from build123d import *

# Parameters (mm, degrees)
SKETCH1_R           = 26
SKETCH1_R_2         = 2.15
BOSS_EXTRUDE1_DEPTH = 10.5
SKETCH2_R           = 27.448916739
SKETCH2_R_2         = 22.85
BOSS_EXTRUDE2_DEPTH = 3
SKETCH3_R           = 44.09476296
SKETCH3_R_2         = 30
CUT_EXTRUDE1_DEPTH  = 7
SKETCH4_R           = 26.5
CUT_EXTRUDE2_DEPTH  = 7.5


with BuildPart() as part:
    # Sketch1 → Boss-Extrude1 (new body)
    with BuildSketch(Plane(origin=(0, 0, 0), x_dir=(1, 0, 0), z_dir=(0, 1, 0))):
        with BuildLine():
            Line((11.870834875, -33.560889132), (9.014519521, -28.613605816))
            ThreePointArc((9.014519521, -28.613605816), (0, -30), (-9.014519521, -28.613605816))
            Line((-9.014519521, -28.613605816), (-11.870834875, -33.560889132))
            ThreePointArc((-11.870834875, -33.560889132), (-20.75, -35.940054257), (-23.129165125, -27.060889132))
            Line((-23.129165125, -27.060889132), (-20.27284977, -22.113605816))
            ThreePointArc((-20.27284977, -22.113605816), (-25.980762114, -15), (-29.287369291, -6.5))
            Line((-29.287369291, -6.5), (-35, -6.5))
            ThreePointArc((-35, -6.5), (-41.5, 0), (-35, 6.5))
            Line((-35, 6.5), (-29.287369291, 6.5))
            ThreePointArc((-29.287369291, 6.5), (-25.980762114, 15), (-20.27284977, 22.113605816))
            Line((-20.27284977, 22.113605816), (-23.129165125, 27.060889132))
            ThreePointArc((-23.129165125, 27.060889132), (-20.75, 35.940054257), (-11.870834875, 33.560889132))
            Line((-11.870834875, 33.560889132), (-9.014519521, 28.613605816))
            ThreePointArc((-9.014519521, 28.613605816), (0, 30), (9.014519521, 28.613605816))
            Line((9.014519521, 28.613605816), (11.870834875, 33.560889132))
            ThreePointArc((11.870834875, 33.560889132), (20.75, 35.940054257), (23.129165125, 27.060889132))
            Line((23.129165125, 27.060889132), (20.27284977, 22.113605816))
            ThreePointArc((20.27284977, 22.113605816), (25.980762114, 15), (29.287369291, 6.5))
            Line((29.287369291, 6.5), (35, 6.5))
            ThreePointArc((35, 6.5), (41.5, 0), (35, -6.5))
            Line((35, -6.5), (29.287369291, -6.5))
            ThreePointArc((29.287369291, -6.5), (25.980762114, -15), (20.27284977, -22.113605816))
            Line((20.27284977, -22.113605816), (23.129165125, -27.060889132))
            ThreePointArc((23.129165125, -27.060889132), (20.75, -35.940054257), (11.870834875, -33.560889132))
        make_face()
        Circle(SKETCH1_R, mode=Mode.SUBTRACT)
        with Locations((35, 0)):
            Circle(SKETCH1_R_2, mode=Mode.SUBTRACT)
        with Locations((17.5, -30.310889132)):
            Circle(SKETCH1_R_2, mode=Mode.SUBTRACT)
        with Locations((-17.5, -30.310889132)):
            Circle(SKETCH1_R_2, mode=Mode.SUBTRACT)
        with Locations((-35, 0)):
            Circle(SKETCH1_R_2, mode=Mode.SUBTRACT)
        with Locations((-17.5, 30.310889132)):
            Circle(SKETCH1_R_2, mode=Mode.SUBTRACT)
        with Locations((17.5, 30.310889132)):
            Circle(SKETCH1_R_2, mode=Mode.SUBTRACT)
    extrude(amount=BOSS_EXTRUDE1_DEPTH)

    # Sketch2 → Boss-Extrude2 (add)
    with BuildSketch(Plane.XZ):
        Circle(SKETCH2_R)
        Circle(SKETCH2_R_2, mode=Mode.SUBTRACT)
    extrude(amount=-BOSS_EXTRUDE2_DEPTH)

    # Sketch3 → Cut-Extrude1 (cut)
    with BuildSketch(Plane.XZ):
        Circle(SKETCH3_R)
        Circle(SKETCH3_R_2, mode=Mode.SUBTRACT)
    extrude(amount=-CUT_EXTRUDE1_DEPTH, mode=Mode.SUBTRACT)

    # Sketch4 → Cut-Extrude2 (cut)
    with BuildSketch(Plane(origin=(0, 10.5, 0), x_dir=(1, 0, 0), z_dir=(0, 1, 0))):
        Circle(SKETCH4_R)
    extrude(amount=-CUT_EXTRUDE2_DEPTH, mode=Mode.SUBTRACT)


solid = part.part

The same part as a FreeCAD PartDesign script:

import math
import FreeCAD as App
import Part
import Sketcher
Q = App.Units.Quantity

doc = App.newDocument("Part")
body = doc.addObject("PartDesign::Body", "Body")

sketch1 = doc.addObject("Sketcher::SketchObject", "Sketch")
body.addObject(sketch1)
sketch1.AttachmentSupport = (doc.XZ_Plane, [""])
sketch1.MapMode = "FlatFace"
sketch1.addGeometry(Part.LineSegment(App.Vector(9, 28.6, 0), App.Vector(11.9, 33.6, 0)), False)
sketch1.addGeometry(Part.ArcOfCircle(Part.Circle(App.Vector(17.5, 30.3, 0), App.Vector(0, 0, 1), 6.5), math.radians(-30), math.radians(150)), False)
sketch1.addGeometry(Part.LineSegment(App.Vector(23.1, 27.1, 0), App.Vector(20.3, 22.1, 0)), False)
sketch1.addGeometry(Part.ArcOfCircle(Part.Circle(App.Vector(0, 0, 0), App.Vector(0, 0, 1), 30), math.radians(13), math.radians(47)), False)
sketch1.addGeometry(Part.LineSegment(App.Vector(29.3, 6.5, 0), App.Vector(35, 6.5, 0)), False)
sketch1.addGeometry(Part.ArcOfCircle(Part.Circle(App.Vector(35, 0, 0), App.Vector(0, 0, 1), 6.5), math.radians(-90), math.radians(90)), False)
sketch1.addGeometry(Part.LineSegment(App.Vector(35, -6.5, 0), App.Vector(29.3, -6.5, 0)), False)
sketch1.addGeometry(Part.ArcOfCircle(Part.Circle(App.Vector(0, 0, 0), App.Vector(0, 0, 1), 30), math.radians(-47), math.radians(-13)), False)
sketch1.addGeometry(Part.LineSegment(App.Vector(20.3, -22.1, 0), App.Vector(23.1, -27.1, 0)), False)
sketch1.addGeometry(Part.ArcOfCircle(Part.Circle(App.Vector(17.5, -30.3, 0), App.Vector(0, 0, 1), 6.5), math.radians(-150), math.radians(30)), False)
sketch1.addGeometry(Part.LineSegment(App.Vector(11.9, -33.6, 0), App.Vector(9, -28.6, 0)), False)
sketch1.addGeometry(Part.ArcOfCircle(Part.Circle(App.Vector(0, 0, 0), App.Vector(0, 0, 1), 30), math.radians(-107), math.radians(-73)), False)
sketch1.addGeometry(Part.LineSegment(App.Vector(-9, -28.6, 0), App.Vector(-11.9, -33.6, 0)), False)
sketch1.addGeometry(Part.ArcOfCircle(Part.Circle(App.Vector(-17.5, -30.3, 0), App.Vector(0, 0, 1), 6.5), math.radians(150), math.radians(330)), False)
sketch1.addGeometry(Part.LineSegment(App.Vector(-23.1, -27.1, 0), App.Vector(-20.3, -22.1, 0)), False)
sketch1.addGeometry(Part.ArcOfCircle(Part.Circle(App.Vector(0, 0, 0), App.Vector(0, 0, 1), 30), math.radians(-167), math.radians(-133)), False)
sketch1.addGeometry(Part.LineSegment(App.Vector(-29.3, -6.5, 0), App.Vector(-35, -6.5, 0)), False)
sketch1.addGeometry(Part.ArcOfCircle(Part.Circle(App.Vector(-35, 0, 0), App.Vector(0, 0, 1), 6.5), math.radians(90), math.radians(270)), False)
sketch1.addGeometry(Part.LineSegment(App.Vector(-35, 6.5, 0), App.Vector(-29.3, 6.5, 0)), False)
sketch1.addGeometry(Part.ArcOfCircle(Part.Circle(App.Vector(0, 0, 0), App.Vector(0, 0, 1), 30), math.radians(133), math.radians(167)), False)
sketch1.addGeometry(Part.LineSegment(App.Vector(-20.3, 22.1, 0), App.Vector(-23.1, 27.1, 0)), False)
sketch1.addGeometry(Part.ArcOfCircle(Part.Circle(App.Vector(-17.5, 30.3, 0), App.Vector(0, 0, 1), 6.5), math.radians(30), math.radians(210)), False)
sketch1.addGeometry(Part.LineSegment(App.Vector(-11.9, 33.6, 0), App.Vector(-9, 28.6, 0)), False)
sketch1.addGeometry(Part.ArcOfCircle(Part.Circle(App.Vector(0, 0, 0), App.Vector(0, 0, 1), 30), math.radians(73), math.radians(107)), False)
sketch1.addGeometry(Part.Circle(App.Vector(17.5, 30.3, 0), App.Vector(0, 0, 1), 2.1), False)
sketch1.addGeometry(Part.Circle(App.Vector(-17.5, 30.3, 0), App.Vector(0, 0, 1), 2.1), False)
sketch1.addGeometry(Part.Circle(App.Vector(35, 0, 0), App.Vector(0, 0, 1), 2.1), False)
sketch1.addGeometry(Part.Circle(App.Vector(17.5, -30.3, 0), App.Vector(0, 0, 1), 2.1), False)
sketch1.addGeometry(Part.Circle(App.Vector(0, 0, 0), App.Vector(0, 0, 1), 26), False)
sketch1.addGeometry(Part.Circle(App.Vector(-35, 0, 0), App.Vector(0, 0, 1), 2.1), False)
sketch1.addGeometry(Part.Circle(App.Vector(-17.5, -30.3, 0), App.Vector(0, 0, 1), 2.1), False)
sketch1.addConstraint(Sketcher.Constraint("Tangent", 0, 2, 1, 2))
sketch1.addConstraint(Sketcher.Constraint("Tangent", 1, 1, 2, 1))
sketch1.addConstraint(Sketcher.Constraint("Coincident", 2, 2, 3, 2))
sketch1.addConstraint(Sketcher.Constraint("Coincident", 3, 1, 4, 1))
sketch1.addConstraint(Sketcher.Constraint("Tangent", 4, 2, 5, 2))
sketch1.addConstraint(Sketcher.Constraint("Tangent", 5, 1, 6, 1))
sketch1.addConstraint(Sketcher.Constraint("Coincident", 6, 2, 7, 2))
sketch1.addConstraint(Sketcher.Constraint("Coincident", 7, 1, 8, 1))
sketch1.addConstraint(Sketcher.Constraint("Tangent", 8, 2, 9, 2))
sketch1.addConstraint(Sketcher.Constraint("Tangent", 9, 1, 10, 1))
sketch1.addConstraint(Sketcher.Constraint("Coincident", 10, 2, 11, 2))
sketch1.addConstraint(Sketcher.Constraint("Coincident", 11, 1, 12, 1))
sketch1.addConstraint(Sketcher.Constraint("Tangent", 12, 2, 13, 2))
sketch1.addConstraint(Sketcher.Constraint("Tangent", 13, 1, 14, 1))
sketch1.addConstraint(Sketcher.Constraint("Coincident", 14, 2, 15, 2))
sketch1.addConstraint(Sketcher.Constraint("Coincident", 15, 1, 16, 1))
sketch1.addConstraint(Sketcher.Constraint("Tangent", 16, 2, 17, 2))
sketch1.addConstraint(Sketcher.Constraint("Tangent", 17, 1, 18, 1))
sketch1.addConstraint(Sketcher.Constraint("Coincident", 18, 2, 19, 2))
sketch1.addConstraint(Sketcher.Constraint("Coincident", 19, 1, 20, 1))
sketch1.addConstraint(Sketcher.Constraint("Tangent", 20, 2, 21, 2))
sketch1.addConstraint(Sketcher.Constraint("Tangent", 21, 1, 22, 1))
sketch1.addConstraint(Sketcher.Constraint("Coincident", 22, 2, 23, 2))
sketch1.addConstraint(Sketcher.Constraint("Coincident", 23, 1, 0, 1))
sketch1.addConstraint(Sketcher.Constraint("Horizontal", 4))
sketch1.addConstraint(Sketcher.Constraint("Horizontal", 6))
sketch1.addConstraint(Sketcher.Constraint("Horizontal", 16))
sketch1.addConstraint(Sketcher.Constraint("Horizontal", 18))
sketch1.addConstraint(Sketcher.Constraint("Coincident", 3, 3, -1, 1))
sketch1.addConstraint(Sketcher.Constraint("Coincident", 7, 3, -1, 1))
sketch1.addConstraint(Sketcher.Constraint("Coincident", 11, 3, -1, 1))
sketch1.addConstraint(Sketcher.Constraint("Coincident", 15, 3, -1, 1))
sketch1.addConstraint(Sketcher.Constraint("Coincident", 19, 3, -1, 1))
sketch1.addConstraint(Sketcher.Constraint("Coincident", 23, 3, -1, 1))
sketch1.addConstraint(Sketcher.Constraint("Coincident", 28, 3, -1, 1))
sketch1.addConstraint(Sketcher.Constraint("Coincident", 24, 3, 1, 3))
sketch1.addConstraint(Sketcher.Constraint("Coincident", 25, 3, 21, 3))
sketch1.addConstraint(Sketcher.Constraint("Coincident", 26, 3, 5, 3))
sketch1.addConstraint(Sketcher.Constraint("Coincident", 27, 3, 9, 3))
sketch1.addConstraint(Sketcher.Constraint("Coincident", 29, 3, 17, 3))
sketch1.addConstraint(Sketcher.Constraint("Coincident", 30, 3, 13, 3))
sketch1.addConstraint(Sketcher.Constraint("Equal", 1, 5))
sketch1.addConstraint(Sketcher.Constraint("Equal", 3, 7))
sketch1.addConstraint(Sketcher.Constraint("Equal", 5, 9))
sketch1.addConstraint(Sketcher.Constraint("Equal", 7, 11))
sketch1.addConstraint(Sketcher.Constraint("Equal", 9, 13))
sketch1.addConstraint(Sketcher.Constraint("Equal", 11, 15))
sketch1.addConstraint(Sketcher.Constraint("Equal", 13, 17))
sketch1.addConstraint(Sketcher.Constraint("Equal", 15, 19))
sketch1.addConstraint(Sketcher.Constraint("Equal", 17, 21))
sketch1.addConstraint(Sketcher.Constraint("Equal", 19, 23))
sketch1.addConstraint(Sketcher.Constraint("Equal", 24, 25))
sketch1.addConstraint(Sketcher.Constraint("Equal", 25, 26))
sketch1.addConstraint(Sketcher.Constraint("Equal", 26, 27))
sketch1.addConstraint(Sketcher.Constraint("Equal", 27, 29))
sketch1.addConstraint(Sketcher.Constraint("Equal", 29, 30))
sketch1.addConstraint(Sketcher.Constraint("Symmetric", 1, 3, 13, 3, -1, 1))
sketch1.addConstraint(Sketcher.Constraint("Symmetric", 5, 3, 17, 3, -1, 1))
sketch1.addConstraint(Sketcher.Constraint("Symmetric", 9, 3, 21, 3, -1, 1))
sketch1.addConstraint(Sketcher.Constraint("Symmetric", 9, 3, 13, 3, -2))
sketch1.addConstraint(Sketcher.Constraint("PointOnObject", 5, 3, -1))
sketch1.addConstraint(Sketcher.Constraint("Parallel", 0, 2))
sketch1.addConstraint(Sketcher.Constraint("Parallel", 8, 10))
sketch1.addConstraint(Sketcher.Constraint("Parallel", 2, 12))
sketch1.addConstraint(Sketcher.Constraint("Parallel", 12, 14))
sketch1.addConstraint(Sketcher.Constraint("Parallel", 10, 20))
sketch1.addConstraint(Sketcher.Constraint("Parallel", 20, 22))
sketch1.addConstraint(Sketcher.Constraint("Horizontal", 10, 2, 11, 1))
sketch1.addConstraint(Sketcher.Constraint("Equal", 0, 2))
sketch1.addConstraint(Sketcher.Constraint("Diameter", 28, Q("52 mm")))
sketch1.addConstraint(Sketcher.Constraint("Radius", 3, Q("30 mm")))
sketch1.addConstraint(Sketcher.Constraint("Diameter", 24, Q("4.3 mm")))
sketch1.addConstraint(Sketcher.Constraint("Radius", 1, Q("6.5 mm")))
sketch1.addConstraint(Sketcher.Constraint("Angle", 0, Q("60 deg")))
sketch1.addConstraint(Sketcher.Constraint("DistanceX", -1, 1, 5, 3, Q("35 mm")))
sketch1.addConstraint(Sketcher.Constraint("DistanceX", 13, 3, 9, 3, Q("35 mm")))
pad1 = doc.addObject("PartDesign::Pad", "Pad")
body.addObject(pad1)
pad1.Profile = sketch1
pad1.Length = 10.5
pad1.Reversed = True

sketch2 = doc.addObject("Sketcher::SketchObject", "Sketch001")
body.addObject(sketch2)
sketch2.AttachmentSupport = (doc.XZ_Plane, [""])
sketch2.MapMode = "FlatFace"
sketch2.addGeometry(Part.Circle(App.Vector(0, 0, 0), App.Vector(0, 0, 1), 27), False)
sketch2.addGeometry(Part.Circle(App.Vector(0, 0, 0), App.Vector(0, 0, 1), 23), False)
sketch2.addConstraint(Sketcher.Constraint("Coincident", 0, 3, -1, 1))
sketch2.addConstraint(Sketcher.Constraint("Coincident", 1, 3, -1, 1))
sketch2.addConstraint(Sketcher.Constraint("Diameter", 1, Q("45.7 mm")))
sketch2.addConstraint(Sketcher.Constraint("Diameter", 0, Q("54.897833 mm")))
pad2 = doc.addObject("PartDesign::Pad", "Pad001")
body.addObject(pad2)
pad2.Profile = sketch2
pad2.Length = 3
pad2.Reversed = True

sketch3 = doc.addObject("Sketcher::SketchObject", "Sketch002")
body.addObject(sketch3)
sketch3.AttachmentSupport = (doc.XZ_Plane, [""])
sketch3.MapMode = "FlatFace"
sketch3.addGeometry(Part.Circle(App.Vector(0, 0, 0), App.Vector(0, 0, 1), 44), False)
sketch3.addGeometry(Part.Circle(App.Vector(0, 0, 0), App.Vector(0, 0, 1), 30), False)
sketch3.addConstraint(Sketcher.Constraint("Coincident", 0, 3, -1, 1))
sketch3.addConstraint(Sketcher.Constraint("Coincident", 1, 3, -1, 1))
sketch3.addConstraint(Sketcher.Constraint("Diameter", 1, Q("60 mm")))
sketch3.addConstraint(Sketcher.Constraint("Diameter", 0, Q("88.189526 mm")))
pocket1 = doc.addObject("PartDesign::Pocket", "Pocket")
body.addObject(pocket1)
pocket1.Profile = sketch3
pocket1.Length = 7

sketch4 = doc.addObject("Sketcher::SketchObject", "Sketch003")
body.addObject(sketch4)
sketch4.AttachmentSupport = (doc.XZ_Plane, [""])
sketch4.MapMode = "FlatFace"
sketch4.AttachmentOffset = App.Placement(App.Vector(0, 0, -10.5), App.Rotation())
sketch4.addGeometry(Part.Circle(App.Vector(0, 0, 0), App.Vector(0, 0, 1), 26), False)
sketch4.addConstraint(Sketcher.Constraint("Coincident", 0, 3, -1, 1))
sketch4.addConstraint(Sketcher.Constraint("Diameter", 0, Q("53 mm")))
pocket2 = doc.addObject("PartDesign::Pocket", "Pocket001")
body.addObject(pocket2)
pocket2.Profile = sketch4
pocket2.Length = 7.5
pocket2.Reversed = True

doc.recompute()
